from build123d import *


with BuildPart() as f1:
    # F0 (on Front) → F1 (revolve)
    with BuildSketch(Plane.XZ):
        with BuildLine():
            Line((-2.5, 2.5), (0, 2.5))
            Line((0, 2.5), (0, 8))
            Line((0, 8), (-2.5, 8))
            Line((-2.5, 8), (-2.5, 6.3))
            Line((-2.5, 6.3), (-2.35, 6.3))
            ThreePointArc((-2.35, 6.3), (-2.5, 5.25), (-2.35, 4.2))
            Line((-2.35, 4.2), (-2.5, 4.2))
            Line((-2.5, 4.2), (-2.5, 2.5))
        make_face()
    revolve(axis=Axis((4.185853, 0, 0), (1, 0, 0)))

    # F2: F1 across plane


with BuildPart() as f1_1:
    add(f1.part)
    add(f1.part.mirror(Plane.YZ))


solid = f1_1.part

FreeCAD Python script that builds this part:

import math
import FreeCAD as App
import Part
import Sketcher
from FreeCAD import Vector
Q = App.Units.Quantity

doc = App.newDocument("Part")
body = doc.addObject("PartDesign::Body", "Body")

# Sketch on XZ plane
sketch1 = body.newObject("Sketcher::SketchObject", "Sketch")
sketch1.AttachmentSupport = (doc.getObject("XZ_Plane"), [""])
sketch1.MapMode = "FlatFace"
sketch1.addGeometry([
    Part.LineSegment(Vector(-2.5, 2.5, 0), Vector(0, 2.5, 0)),  # 0
    Part.LineSegment(Vector(0, 2.5, 0), Vector(0, 8, 0)),  # 1
    Part.LineSegment(Vector(0, 8, 0), Vector(-2.5, 8, 0)),  # 2
    Part.LineSegment(Vector(-2.5, 8, 0), Vector(-2.5, 6.3, 0)),  # 3
    Part.LineSegment(Vector(-2.5, 6.3, 0), Vector(-2.35, 6.3, 0)),  # 4
    Part.ArcOfCircle(Part.Circle(Vector(1.25, 5.25, 0), Vector(0, 0, 1), 3.75), math.radians(164), math.radians(196)),  # 5
    Part.LineSegment(Vector(-2.35, 4.2, 0), Vector(-2.5, 4.2, 0)),  # 6
    Part.LineSegment(Vector(-2.5, 4.2, 0), Vector(-2.5, 2.5, 0)),  # 7
], False)
sketch1.addConstraint([
    Sketcher.Constraint("Coincident", 0, 2, 1, 1),
    Sketcher.Constraint("Coincident", 1, 2, 2, 1),
    Sketcher.Constraint("Coincident", 2, 2, 3, 1),
    Sketcher.Constraint("Coincident", 3, 2, 4, 1),
    Sketcher.Constraint("Coincident", 4, 2, 5, 1),
    Sketcher.Constraint("Coincident", 5, 2, 6, 1),
    Sketcher.Constraint("Coincident", 6, 2, 7, 1),
    Sketcher.Constraint("Coincident", 7, 2, 0, 1),
    Sketcher.Constraint("Horizontal", 0),
    Sketcher.Constraint("Vertical", 1),
    Sketcher.Constraint("Horizontal", 2),
    Sketcher.Constraint("Vertical", 3),
    Sketcher.Constraint("Horizontal", 4),
    Sketcher.Constraint("Horizontal", 6),
    Sketcher.Constraint("Vertical", 7),
    Sketcher.Constraint("PointOnObject", 0, 2, -2),
    Sketcher.Constraint("Vertical", 4, 2, 5, 2),
    Sketcher.Constraint("Vertical", 3, 2, 6, 2),
    Sketcher.Constraint("Equal", 3, 7),
    Sketcher.Constraint("Radius", 5, Q("3.75 mm")),
    Sketcher.Constraint("DistanceX", 0, 1, 0, 2, Q("2.5 mm")),
    Sketcher.Constraint("DistanceY", 1, 1, 1, 2, Q("5.5 mm")),
    Sketcher.Constraint("DistanceY", 3, 2, 3, 1, Q("1.7 mm")),
    Sketcher.Constraint("DistanceY", -1, 1, 1, 2, Q("8 mm")),
    Sketcher.Constraint("DistanceX", 4, 1, 4, 2, Q("0.15 mm")),
])
revolution = body.newObject("PartDesign::Revolution", "Revolution")
revolution.Profile = sketch1
revolution.ReferenceAxis = (sketch1, ["H_Axis"])
revolution.Angle = 360
body2 = doc.addObject("PartDesign::Body", "Body001")
doc.recompute()

body2.BaseFeature = body
doc.recompute()

mirroring = doc.addObject("Part::Mirroring", "Mirroring")
mirroring.Source = body
mirroring.Base = Vector(0, 0, 0)
mirroring.Normal = Vector(1, 0, 0)
body3 = doc.addObject("PartDesign::Body", "Body002")
body3.BaseFeature = mirroring
boolean = body2.newObject("PartDesign::Boolean", "Boolean")
boolean.Type = "Fuse"
boolean.addObjects([body3])
doc.recompute()
mirroring.Visibility = False

doc.recompute()
